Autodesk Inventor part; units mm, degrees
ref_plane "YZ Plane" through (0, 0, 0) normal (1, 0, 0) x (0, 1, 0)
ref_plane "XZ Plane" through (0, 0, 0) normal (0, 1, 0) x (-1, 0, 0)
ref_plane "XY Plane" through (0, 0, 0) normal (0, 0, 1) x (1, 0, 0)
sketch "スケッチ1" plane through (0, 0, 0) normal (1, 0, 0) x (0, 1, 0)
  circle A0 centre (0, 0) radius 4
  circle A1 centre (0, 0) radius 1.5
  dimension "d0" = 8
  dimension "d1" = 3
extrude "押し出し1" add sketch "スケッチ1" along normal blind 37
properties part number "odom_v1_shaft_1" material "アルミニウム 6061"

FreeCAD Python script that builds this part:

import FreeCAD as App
import Part
import Sketcher
from FreeCAD import Vector
Q = App.Units.Quantity

doc = App.newDocument("Part")
body = doc.addObject("PartDesign::Body", "Body")

# Sketch on YZ plane
sketch1 = body.newObject("Sketcher::SketchObject", "Sketch")
sketch1.AttachmentSupport = (doc.getObject("YZ_Plane"), [""])
sketch1.MapMode = "FlatFace"
sketch1.addGeometry([
    Part.Circle(Vector(0, 0, 0), Vector(0, 0, 1), 4),
    Part.Circle(Vector(0, 0, 0), Vector(0, 0, 1), 1.5),
], False)
sketch1.addConstraint([
    Sketcher.Constraint("Coincident", 0, 3, -1, 1),
    Sketcher.Constraint("Coincident", 1, 3, -1, 1),
    Sketcher.Constraint("Diameter", 0, Q("8 mm")),
    Sketcher.Constraint("Diameter", 1, Q("3 mm")),
])
pad1 = body.newObject("PartDesign::Pad", "Pad")
pad1.Profile = sketch1
pad1.Length = 37

doc.recompute()
